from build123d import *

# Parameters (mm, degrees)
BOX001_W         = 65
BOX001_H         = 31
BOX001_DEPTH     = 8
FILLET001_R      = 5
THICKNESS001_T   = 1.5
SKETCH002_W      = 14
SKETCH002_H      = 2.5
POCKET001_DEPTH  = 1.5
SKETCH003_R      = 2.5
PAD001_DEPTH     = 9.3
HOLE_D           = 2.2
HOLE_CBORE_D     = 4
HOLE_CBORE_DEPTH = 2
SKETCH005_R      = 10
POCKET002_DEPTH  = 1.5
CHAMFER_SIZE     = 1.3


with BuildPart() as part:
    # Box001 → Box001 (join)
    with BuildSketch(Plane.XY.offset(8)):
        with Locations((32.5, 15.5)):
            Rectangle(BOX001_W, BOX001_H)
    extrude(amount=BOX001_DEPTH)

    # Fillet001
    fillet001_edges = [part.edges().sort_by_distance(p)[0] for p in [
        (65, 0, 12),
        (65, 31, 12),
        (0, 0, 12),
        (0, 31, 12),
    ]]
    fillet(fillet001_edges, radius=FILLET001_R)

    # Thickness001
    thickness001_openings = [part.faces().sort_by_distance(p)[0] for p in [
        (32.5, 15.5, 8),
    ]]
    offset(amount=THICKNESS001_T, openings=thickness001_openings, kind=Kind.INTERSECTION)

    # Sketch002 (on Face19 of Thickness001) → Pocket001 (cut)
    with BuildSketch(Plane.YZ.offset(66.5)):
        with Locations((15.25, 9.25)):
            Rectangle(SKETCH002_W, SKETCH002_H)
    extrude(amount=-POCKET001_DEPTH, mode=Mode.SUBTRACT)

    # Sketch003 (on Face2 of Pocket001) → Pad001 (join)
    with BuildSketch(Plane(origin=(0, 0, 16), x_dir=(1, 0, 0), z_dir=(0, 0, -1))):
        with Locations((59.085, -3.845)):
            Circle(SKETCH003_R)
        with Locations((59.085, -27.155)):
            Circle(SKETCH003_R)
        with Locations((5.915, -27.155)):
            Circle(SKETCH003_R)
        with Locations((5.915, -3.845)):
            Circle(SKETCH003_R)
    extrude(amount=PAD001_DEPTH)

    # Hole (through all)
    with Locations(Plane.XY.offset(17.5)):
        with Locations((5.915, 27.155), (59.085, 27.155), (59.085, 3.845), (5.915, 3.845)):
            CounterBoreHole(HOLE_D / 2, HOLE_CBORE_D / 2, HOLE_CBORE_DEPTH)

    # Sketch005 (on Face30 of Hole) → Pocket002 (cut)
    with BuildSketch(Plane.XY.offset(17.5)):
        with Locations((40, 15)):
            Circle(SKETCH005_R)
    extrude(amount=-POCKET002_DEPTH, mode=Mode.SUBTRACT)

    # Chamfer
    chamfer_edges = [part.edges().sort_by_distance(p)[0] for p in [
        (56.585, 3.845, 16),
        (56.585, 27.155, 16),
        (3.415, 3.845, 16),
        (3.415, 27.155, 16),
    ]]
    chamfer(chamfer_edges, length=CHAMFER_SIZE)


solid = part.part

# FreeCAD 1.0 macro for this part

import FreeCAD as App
import Part
import Sketcher
from FreeCAD import Vector
Q = App.Units.Quantity


def edges_at(feature, points):
    """Names of the edges that pass closest to the given points."""
    edges = feature.Shape.Edges
    near = lambda p: min(range(len(edges)), key=lambda i: edges[i].distToShape(Part.Vertex(*p))[0])
    return sorted({f"Edge{near(p) + 1}" for p in points})


def faces_at(feature, points):
    """Names of the faces that lie closest to the given points."""
    faces = feature.Shape.Faces
    near = lambda p: min(range(len(faces)), key=lambda i: faces[i].distToShape(Part.Vertex(*p))[0])
    return sorted({f"Face{near(p) + 1}" for p in points})

doc = App.newDocument("Part")
params = doc.addObject("Spreadsheet::Sheet", "Params")
for row, (alias, value) in enumerate([
    ("sketch1_width", "65 mm"),
    ("sketch1_height", "31 mm"),
    ("pad1_length", "8 mm"),
    ("fillet_radius", "5 mm"),
    ("thickness_wall", "1.5 mm"),
    ("sketch2_width", "14 mm"),
    ("sketch2_height", "2.5 mm"),
    ("pocket1_length", "1.5 mm"),
    ("sketch3_diameter", "5 mm"),
    ("pad2_length", "9.3 mm"),
    ("sketch4_diameter", "2.2 mm"),
    ("hole_diameter", "2.2 mm"),
    ("hole_cbore_diameter", "4 mm"),
    ("hole_cbore_depth", "2 mm"),
    ("sketch5_diameter", "20 mm"),
    ("pocket2_length", "1.5 mm"),
    ("chamfer_size", "1.3 mm"),
], start=1):
    params.set(f"A{row}", alias)
    params.set(f"B{row}", "=" + value)
    params.setAlias(f"B{row}", alias)

body = doc.addObject("PartDesign::Body", "Body")

sketch1 = doc.addObject("Sketcher::SketchObject", "Sketch")
body.addObject(sketch1)
sketch1.AttachmentSupport = (doc.XY_Plane, [""])
sketch1.MapMode = "FlatFace"
sketch1.AttachmentOffset = App.Placement(Vector(0, 0, 8), App.Rotation())
sketch1.addGeometry(Part.LineSegment(Vector(0, 31, 0), Vector(0, 0, 0)), False)
sketch1.addGeometry(Part.LineSegment(Vector(0, 0, 0), Vector(65, 0, 0)), False)
sketch1.addGeometry(Part.LineSegment(Vector(65, 0, 0), Vector(65, 31, 0)), False)
sketch1.addGeometry(Part.LineSegment(Vector(65, 31, 0), Vector(0, 31, 0)), False)
sketch1.addConstraint(Sketcher.Constraint("Coincident", 0, 2, 1, 1))
sketch1.addConstraint(Sketcher.Constraint("Coincident", 1, 2, 2, 1))
sketch1.addConstraint(Sketcher.Constraint("Coincident", 2, 2, 3, 1))
sketch1.addConstraint(Sketcher.Constraint("Coincident", 3, 2, 0, 1))
sketch1.addConstraint(Sketcher.Constraint("Vertical", 0))
sketch1.addConstraint(Sketcher.Constraint("Horizontal", 1))
sketch1.addConstraint(Sketcher.Constraint("Vertical", 2))
sketch1.addConstraint(Sketcher.Constraint("Horizontal", 3))
sketch1.addConstraint(Sketcher.Constraint("Coincident", 0, 2, -1, 1))
sketch1.addConstraint(Sketcher.Constraint("DistanceX", 1, 1, 1, 2, Q("65 mm")))
sketch1.addConstraint(Sketcher.Constraint("DistanceY", 0, 2, 0, 1, Q("31 mm")))
sketch1.setExpression("Constraints[9]", "Params.sketch1_width")
sketch1.setExpression("Constraints[10]", "Params.sketch1_height")
pad1 = doc.addObject("PartDesign::Pad", "Pad")
body.addObject(pad1)
pad1.Profile = sketch1
pad1.setExpression("Length", "Params.pad1_length")
doc.recompute()

fillet = doc.addObject("PartDesign::Fillet", "Fillet")
body.addObject(fillet)
fillet.Base = (pad1, edges_at(pad1, [
    (65, 0, 12),
    (65, 31, 12),
    (0, 0, 12),
    (0, 31, 12),
]))
fillet.setExpression("Radius", "Params.fillet_radius")
doc.recompute()

thickness = doc.addObject("PartDesign::Thickness", "Thickness")
body.addObject(thickness)
thickness.Base = (fillet, faces_at(fillet, [(32.5, 15.5, 8)]))
thickness.setExpression("Value", "Params.thickness_wall")
thickness.Reversed = False
thickness.Join = "Intersection"

sketch2 = doc.addObject("Sketcher::SketchObject", "Sketch001")
body.addObject(sketch2)
sketch2.AttachmentSupport = (doc.YZ_Plane, [""])
sketch2.MapMode = "FlatFace"
sketch2.AttachmentOffset = App.Placement(Vector(0, 0, 66.5), App.Rotation())
sketch2.addGeometry(Part.LineSegment(Vector(8.2, 10.5, 0), Vector(8.2, 8, 0)), False)
sketch2.addGeometry(Part.LineSegment(Vector(8.2, 8, 0), Vector(22.2, 8, 0)), False)
sketch2.addGeometry(Part.LineSegment(Vector(22.2, 8, 0), Vector(22.2, 10.5, 0)), False)
sketch2.addGeometry(Part.LineSegment(Vector(22.2, 10.5, 0), Vector(8.2, 10.5, 0)), False)
sketch2.addConstraint(Sketcher.Constraint("Coincident", 0, 2, 1, 1))
sketch2.addConstraint(Sketcher.Constraint("Coincident", 1, 2, 2, 1))
sketch2.addConstraint(Sketcher.Constraint("Coincident", 2, 2, 3, 1))
sketch2.addConstraint(Sketcher.Constraint("Coincident", 3, 2, 0, 1))
sketch2.addConstraint(Sketcher.Constraint("Vertical", 0))
sketch2.addConstraint(Sketcher.Constraint("Horizontal", 1))
sketch2.addConstraint(Sketcher.Constraint("Vertical", 2))
sketch2.addConstraint(Sketcher.Constraint("Horizontal", 3))
sketch2.addConstraint(Sketcher.Constraint("DistanceX", 1, 1, 1, 2, Q("14 mm")))
sketch2.addConstraint(Sketcher.Constraint("DistanceY", 0, 2, 0, 1, Q("2.5 mm")))
sketch2.addConstraint(Sketcher.Constraint("DistanceY", -1, 1, 0, 2, Q("8 mm")))
sketch2.addConstraint(Sketcher.Constraint("DistanceX", -1, 1, 0, 2, Q("8.25 mm")))
sketch2.setExpression("Constraints[8]", "Params.sketch2_width")
sketch2.setExpression("Constraints[9]", "Params.sketch2_height")
pocket1 = doc.addObject("PartDesign::Pocket", "Pocket")
body.addObject(pocket1)
pocket1.Profile = sketch2
pocket1.setExpression("Length", "Params.pocket1_length")

sketch3 = doc.addObject("Sketcher::SketchObject", "Sketch002")
body.addObject(sketch3)
sketch3.AttachmentSupport = (doc.XY_Plane, [""])
sketch3.MapMode = "FlatFace"
sketch3.AttachmentOffset = App.Placement(Vector(0, 0, 16), App.Rotation())
sketch3.addGeometry(Part.Circle(Vector(59.1, 3.8, 0), Vector(0, 0, 1), 2.5), False)
sketch3.addGeometry(Part.Circle(Vector(59.1, 27.2, 0), Vector(0, 0, 1), 2.5), False)
sketch3.addGeometry(Part.Circle(Vector(5.9, 27.2, 0), Vector(0, 0, 1), 2.5), False)
sketch3.addGeometry(Part.Circle(Vector(5.9, 3.8, 0), Vector(0, 0, 1), 2.5), False)
sketch3.addConstraint(Sketcher.Constraint("Equal", 0, 1))
sketch3.addConstraint(Sketcher.Constraint("Equal", 1, 2))
sketch3.addConstraint(Sketcher.Constraint("Equal", 2, 3))
sketch3.addConstraint(Sketcher.Constraint("Horizontal", 1, 3, 2, 3))
sketch3.addConstraint(Sketcher.Constraint("Horizontal", 0, 3, 3, 3))
sketch3.addConstraint(Sketcher.Constraint("Vertical", 0, 3, 1, 3))
sketch3.addConstraint(Sketcher.Constraint("Vertical", 2, 3, 3, 3))
sketch3.addConstraint(Sketcher.Constraint("Diameter", 0, Q("5 mm")))
sketch3.addConstraint(Sketcher.Constraint("DistanceY", 0, 3, 1, 3, Q("23.31 mm")))
sketch3.addConstraint(Sketcher.Constraint("DistanceX", 2, 3, 1, 3, Q("53.17 mm")))
sketch3.addConstraint(Sketcher.Constraint("DistanceX", -1, 1, 0, 3, Q("59.085 mm")))
sketch3.addConstraint(Sketcher.Constraint("DistanceY", -1, 1, 0, 3, Q("3.845 mm")))
sketch3.setExpression("Constraints[7]", "Params.sketch3_diameter")
pad2 = doc.addObject("PartDesign::Pad", "Pad001")
body.addObject(pad2)
pad2.Profile = sketch3
pad2.setExpression("Length", "Params.pad2_length")
pad2.Reversed = True

sketch4 = doc.addObject("Sketcher::SketchObject", "Sketch003")
body.addObject(sketch4)
sketch4.AttachmentSupport = (doc.XY_Plane, [""])
sketch4.MapMode = "FlatFace"
sketch4.AttachmentOffset = App.Placement(Vector(0, 0, 17.5), App.Rotation())
sketch4.addGeometry(Part.Circle(Vector(5.9, 27.2, 0), Vector(0, 0, 1), 1.1), False)
sketch4.addGeometry(Part.Circle(Vector(59.1, 27.2, 0), Vector(0, 0, 1), 1.1), False)
sketch4.addGeometry(Part.Circle(Vector(59.1, 3.8, 0), Vector(0, 0, 1), 1.1), False)
sketch4.addGeometry(Part.Circle(Vector(5.9, 3.8, 0), Vector(0, 0, 1), 1.1), False)
sketch4.addConstraint(Sketcher.Constraint("Equal", 0, 1))
sketch4.addConstraint(Sketcher.Constraint("Equal", 1, 2))
sketch4.addConstraint(Sketcher.Constraint("Equal", 2, 3))
sketch4.addConstraint(Sketcher.Constraint("Horizontal", 0, 3, 1, 3))
sketch4.addConstraint(Sketcher.Constraint("Horizontal", 2, 3, 3, 3))
sketch4.addConstraint(Sketcher.Constraint("Vertical", 1, 3, 2, 3))
sketch4.addConstraint(Sketcher.Constraint("Vertical", 0, 3, 3, 3))
sketch4.addConstraint(Sketcher.Constraint("Diameter", 0, Q("2.2 mm")))
sketch4.addConstraint(Sketcher.Constraint("DistanceX", 0, 3, 1, 3, Q("53.17 mm")))
sketch4.addConstraint(Sketcher.Constraint("DistanceY", 2, 3, 1, 3, Q("23.31 mm")))
sketch4.addConstraint(Sketcher.Constraint("DistanceX", -1, 1, 0, 3, Q("5.915 mm")))
sketch4.addConstraint(Sketcher.Constraint("DistanceY", -1, 1, 0, 3, Q("27.155 mm")))
sketch4.setExpression("Constraints[7]", "Params.sketch4_diameter")
doc.recompute()
hole = doc.addObject("PartDesign::Hole", "Hole")
body.addObject(hole)
hole.Profile = sketch4
hole.ThreadType = "None"
hole.setExpression("Diameter", "Params.hole_diameter")
hole.DepthType = "ThroughAll"
hole.HoleCutType = "Counterbore"
hole.setExpression("HoleCutDiameter", "Params.hole_cbore_diameter")
hole.setExpression("HoleCutDepth", "Params.hole_cbore_depth")

sketch5 = doc.addObject("Sketcher::SketchObject", "Sketch004")
body.addObject(sketch5)
sketch5.AttachmentSupport = (doc.XY_Plane, [""])
sketch5.MapMode = "FlatFace"
sketch5.AttachmentOffset = App.Placement(Vector(0, 0, 17.5), App.Rotation())
sketch5.addGeometry(Part.Circle(Vector(40, 15, 0), Vector(0, 0, 1), 10), False)
sketch5.addConstraint(Sketcher.Constraint("Diameter", 0, Q("20 mm")))
sketch5.addConstraint(Sketcher.Constraint("DistanceX", -1, 1, 0, 3, Q("40 mm")))
sketch5.addConstraint(Sketcher.Constraint("DistanceY", -1, 1, 0, 3, Q("15 mm")))
sketch5.setExpression("Constraints[0]", "Params.sketch5_diameter")
pocket2 = doc.addObject("PartDesign::Pocket", "Pocket001")
body.addObject(pocket2)
pocket2.Profile = sketch5
pocket2.setExpression("Length", "Params.pocket2_length")
doc.recompute()

chamfer = doc.addObject("PartDesign::Chamfer", "Chamfer")
body.addObject(chamfer)
chamfer.Base = (pocket2, edges_at(pocket2, [
    (56.585, 3.845, 16),
    (56.585, 27.155, 16),
    (3.415, 3.845, 16),
    (3.415, 27.155, 16),
]))
chamfer.setExpression("Size", "Params.chamfer_size")

doc.recompute()
